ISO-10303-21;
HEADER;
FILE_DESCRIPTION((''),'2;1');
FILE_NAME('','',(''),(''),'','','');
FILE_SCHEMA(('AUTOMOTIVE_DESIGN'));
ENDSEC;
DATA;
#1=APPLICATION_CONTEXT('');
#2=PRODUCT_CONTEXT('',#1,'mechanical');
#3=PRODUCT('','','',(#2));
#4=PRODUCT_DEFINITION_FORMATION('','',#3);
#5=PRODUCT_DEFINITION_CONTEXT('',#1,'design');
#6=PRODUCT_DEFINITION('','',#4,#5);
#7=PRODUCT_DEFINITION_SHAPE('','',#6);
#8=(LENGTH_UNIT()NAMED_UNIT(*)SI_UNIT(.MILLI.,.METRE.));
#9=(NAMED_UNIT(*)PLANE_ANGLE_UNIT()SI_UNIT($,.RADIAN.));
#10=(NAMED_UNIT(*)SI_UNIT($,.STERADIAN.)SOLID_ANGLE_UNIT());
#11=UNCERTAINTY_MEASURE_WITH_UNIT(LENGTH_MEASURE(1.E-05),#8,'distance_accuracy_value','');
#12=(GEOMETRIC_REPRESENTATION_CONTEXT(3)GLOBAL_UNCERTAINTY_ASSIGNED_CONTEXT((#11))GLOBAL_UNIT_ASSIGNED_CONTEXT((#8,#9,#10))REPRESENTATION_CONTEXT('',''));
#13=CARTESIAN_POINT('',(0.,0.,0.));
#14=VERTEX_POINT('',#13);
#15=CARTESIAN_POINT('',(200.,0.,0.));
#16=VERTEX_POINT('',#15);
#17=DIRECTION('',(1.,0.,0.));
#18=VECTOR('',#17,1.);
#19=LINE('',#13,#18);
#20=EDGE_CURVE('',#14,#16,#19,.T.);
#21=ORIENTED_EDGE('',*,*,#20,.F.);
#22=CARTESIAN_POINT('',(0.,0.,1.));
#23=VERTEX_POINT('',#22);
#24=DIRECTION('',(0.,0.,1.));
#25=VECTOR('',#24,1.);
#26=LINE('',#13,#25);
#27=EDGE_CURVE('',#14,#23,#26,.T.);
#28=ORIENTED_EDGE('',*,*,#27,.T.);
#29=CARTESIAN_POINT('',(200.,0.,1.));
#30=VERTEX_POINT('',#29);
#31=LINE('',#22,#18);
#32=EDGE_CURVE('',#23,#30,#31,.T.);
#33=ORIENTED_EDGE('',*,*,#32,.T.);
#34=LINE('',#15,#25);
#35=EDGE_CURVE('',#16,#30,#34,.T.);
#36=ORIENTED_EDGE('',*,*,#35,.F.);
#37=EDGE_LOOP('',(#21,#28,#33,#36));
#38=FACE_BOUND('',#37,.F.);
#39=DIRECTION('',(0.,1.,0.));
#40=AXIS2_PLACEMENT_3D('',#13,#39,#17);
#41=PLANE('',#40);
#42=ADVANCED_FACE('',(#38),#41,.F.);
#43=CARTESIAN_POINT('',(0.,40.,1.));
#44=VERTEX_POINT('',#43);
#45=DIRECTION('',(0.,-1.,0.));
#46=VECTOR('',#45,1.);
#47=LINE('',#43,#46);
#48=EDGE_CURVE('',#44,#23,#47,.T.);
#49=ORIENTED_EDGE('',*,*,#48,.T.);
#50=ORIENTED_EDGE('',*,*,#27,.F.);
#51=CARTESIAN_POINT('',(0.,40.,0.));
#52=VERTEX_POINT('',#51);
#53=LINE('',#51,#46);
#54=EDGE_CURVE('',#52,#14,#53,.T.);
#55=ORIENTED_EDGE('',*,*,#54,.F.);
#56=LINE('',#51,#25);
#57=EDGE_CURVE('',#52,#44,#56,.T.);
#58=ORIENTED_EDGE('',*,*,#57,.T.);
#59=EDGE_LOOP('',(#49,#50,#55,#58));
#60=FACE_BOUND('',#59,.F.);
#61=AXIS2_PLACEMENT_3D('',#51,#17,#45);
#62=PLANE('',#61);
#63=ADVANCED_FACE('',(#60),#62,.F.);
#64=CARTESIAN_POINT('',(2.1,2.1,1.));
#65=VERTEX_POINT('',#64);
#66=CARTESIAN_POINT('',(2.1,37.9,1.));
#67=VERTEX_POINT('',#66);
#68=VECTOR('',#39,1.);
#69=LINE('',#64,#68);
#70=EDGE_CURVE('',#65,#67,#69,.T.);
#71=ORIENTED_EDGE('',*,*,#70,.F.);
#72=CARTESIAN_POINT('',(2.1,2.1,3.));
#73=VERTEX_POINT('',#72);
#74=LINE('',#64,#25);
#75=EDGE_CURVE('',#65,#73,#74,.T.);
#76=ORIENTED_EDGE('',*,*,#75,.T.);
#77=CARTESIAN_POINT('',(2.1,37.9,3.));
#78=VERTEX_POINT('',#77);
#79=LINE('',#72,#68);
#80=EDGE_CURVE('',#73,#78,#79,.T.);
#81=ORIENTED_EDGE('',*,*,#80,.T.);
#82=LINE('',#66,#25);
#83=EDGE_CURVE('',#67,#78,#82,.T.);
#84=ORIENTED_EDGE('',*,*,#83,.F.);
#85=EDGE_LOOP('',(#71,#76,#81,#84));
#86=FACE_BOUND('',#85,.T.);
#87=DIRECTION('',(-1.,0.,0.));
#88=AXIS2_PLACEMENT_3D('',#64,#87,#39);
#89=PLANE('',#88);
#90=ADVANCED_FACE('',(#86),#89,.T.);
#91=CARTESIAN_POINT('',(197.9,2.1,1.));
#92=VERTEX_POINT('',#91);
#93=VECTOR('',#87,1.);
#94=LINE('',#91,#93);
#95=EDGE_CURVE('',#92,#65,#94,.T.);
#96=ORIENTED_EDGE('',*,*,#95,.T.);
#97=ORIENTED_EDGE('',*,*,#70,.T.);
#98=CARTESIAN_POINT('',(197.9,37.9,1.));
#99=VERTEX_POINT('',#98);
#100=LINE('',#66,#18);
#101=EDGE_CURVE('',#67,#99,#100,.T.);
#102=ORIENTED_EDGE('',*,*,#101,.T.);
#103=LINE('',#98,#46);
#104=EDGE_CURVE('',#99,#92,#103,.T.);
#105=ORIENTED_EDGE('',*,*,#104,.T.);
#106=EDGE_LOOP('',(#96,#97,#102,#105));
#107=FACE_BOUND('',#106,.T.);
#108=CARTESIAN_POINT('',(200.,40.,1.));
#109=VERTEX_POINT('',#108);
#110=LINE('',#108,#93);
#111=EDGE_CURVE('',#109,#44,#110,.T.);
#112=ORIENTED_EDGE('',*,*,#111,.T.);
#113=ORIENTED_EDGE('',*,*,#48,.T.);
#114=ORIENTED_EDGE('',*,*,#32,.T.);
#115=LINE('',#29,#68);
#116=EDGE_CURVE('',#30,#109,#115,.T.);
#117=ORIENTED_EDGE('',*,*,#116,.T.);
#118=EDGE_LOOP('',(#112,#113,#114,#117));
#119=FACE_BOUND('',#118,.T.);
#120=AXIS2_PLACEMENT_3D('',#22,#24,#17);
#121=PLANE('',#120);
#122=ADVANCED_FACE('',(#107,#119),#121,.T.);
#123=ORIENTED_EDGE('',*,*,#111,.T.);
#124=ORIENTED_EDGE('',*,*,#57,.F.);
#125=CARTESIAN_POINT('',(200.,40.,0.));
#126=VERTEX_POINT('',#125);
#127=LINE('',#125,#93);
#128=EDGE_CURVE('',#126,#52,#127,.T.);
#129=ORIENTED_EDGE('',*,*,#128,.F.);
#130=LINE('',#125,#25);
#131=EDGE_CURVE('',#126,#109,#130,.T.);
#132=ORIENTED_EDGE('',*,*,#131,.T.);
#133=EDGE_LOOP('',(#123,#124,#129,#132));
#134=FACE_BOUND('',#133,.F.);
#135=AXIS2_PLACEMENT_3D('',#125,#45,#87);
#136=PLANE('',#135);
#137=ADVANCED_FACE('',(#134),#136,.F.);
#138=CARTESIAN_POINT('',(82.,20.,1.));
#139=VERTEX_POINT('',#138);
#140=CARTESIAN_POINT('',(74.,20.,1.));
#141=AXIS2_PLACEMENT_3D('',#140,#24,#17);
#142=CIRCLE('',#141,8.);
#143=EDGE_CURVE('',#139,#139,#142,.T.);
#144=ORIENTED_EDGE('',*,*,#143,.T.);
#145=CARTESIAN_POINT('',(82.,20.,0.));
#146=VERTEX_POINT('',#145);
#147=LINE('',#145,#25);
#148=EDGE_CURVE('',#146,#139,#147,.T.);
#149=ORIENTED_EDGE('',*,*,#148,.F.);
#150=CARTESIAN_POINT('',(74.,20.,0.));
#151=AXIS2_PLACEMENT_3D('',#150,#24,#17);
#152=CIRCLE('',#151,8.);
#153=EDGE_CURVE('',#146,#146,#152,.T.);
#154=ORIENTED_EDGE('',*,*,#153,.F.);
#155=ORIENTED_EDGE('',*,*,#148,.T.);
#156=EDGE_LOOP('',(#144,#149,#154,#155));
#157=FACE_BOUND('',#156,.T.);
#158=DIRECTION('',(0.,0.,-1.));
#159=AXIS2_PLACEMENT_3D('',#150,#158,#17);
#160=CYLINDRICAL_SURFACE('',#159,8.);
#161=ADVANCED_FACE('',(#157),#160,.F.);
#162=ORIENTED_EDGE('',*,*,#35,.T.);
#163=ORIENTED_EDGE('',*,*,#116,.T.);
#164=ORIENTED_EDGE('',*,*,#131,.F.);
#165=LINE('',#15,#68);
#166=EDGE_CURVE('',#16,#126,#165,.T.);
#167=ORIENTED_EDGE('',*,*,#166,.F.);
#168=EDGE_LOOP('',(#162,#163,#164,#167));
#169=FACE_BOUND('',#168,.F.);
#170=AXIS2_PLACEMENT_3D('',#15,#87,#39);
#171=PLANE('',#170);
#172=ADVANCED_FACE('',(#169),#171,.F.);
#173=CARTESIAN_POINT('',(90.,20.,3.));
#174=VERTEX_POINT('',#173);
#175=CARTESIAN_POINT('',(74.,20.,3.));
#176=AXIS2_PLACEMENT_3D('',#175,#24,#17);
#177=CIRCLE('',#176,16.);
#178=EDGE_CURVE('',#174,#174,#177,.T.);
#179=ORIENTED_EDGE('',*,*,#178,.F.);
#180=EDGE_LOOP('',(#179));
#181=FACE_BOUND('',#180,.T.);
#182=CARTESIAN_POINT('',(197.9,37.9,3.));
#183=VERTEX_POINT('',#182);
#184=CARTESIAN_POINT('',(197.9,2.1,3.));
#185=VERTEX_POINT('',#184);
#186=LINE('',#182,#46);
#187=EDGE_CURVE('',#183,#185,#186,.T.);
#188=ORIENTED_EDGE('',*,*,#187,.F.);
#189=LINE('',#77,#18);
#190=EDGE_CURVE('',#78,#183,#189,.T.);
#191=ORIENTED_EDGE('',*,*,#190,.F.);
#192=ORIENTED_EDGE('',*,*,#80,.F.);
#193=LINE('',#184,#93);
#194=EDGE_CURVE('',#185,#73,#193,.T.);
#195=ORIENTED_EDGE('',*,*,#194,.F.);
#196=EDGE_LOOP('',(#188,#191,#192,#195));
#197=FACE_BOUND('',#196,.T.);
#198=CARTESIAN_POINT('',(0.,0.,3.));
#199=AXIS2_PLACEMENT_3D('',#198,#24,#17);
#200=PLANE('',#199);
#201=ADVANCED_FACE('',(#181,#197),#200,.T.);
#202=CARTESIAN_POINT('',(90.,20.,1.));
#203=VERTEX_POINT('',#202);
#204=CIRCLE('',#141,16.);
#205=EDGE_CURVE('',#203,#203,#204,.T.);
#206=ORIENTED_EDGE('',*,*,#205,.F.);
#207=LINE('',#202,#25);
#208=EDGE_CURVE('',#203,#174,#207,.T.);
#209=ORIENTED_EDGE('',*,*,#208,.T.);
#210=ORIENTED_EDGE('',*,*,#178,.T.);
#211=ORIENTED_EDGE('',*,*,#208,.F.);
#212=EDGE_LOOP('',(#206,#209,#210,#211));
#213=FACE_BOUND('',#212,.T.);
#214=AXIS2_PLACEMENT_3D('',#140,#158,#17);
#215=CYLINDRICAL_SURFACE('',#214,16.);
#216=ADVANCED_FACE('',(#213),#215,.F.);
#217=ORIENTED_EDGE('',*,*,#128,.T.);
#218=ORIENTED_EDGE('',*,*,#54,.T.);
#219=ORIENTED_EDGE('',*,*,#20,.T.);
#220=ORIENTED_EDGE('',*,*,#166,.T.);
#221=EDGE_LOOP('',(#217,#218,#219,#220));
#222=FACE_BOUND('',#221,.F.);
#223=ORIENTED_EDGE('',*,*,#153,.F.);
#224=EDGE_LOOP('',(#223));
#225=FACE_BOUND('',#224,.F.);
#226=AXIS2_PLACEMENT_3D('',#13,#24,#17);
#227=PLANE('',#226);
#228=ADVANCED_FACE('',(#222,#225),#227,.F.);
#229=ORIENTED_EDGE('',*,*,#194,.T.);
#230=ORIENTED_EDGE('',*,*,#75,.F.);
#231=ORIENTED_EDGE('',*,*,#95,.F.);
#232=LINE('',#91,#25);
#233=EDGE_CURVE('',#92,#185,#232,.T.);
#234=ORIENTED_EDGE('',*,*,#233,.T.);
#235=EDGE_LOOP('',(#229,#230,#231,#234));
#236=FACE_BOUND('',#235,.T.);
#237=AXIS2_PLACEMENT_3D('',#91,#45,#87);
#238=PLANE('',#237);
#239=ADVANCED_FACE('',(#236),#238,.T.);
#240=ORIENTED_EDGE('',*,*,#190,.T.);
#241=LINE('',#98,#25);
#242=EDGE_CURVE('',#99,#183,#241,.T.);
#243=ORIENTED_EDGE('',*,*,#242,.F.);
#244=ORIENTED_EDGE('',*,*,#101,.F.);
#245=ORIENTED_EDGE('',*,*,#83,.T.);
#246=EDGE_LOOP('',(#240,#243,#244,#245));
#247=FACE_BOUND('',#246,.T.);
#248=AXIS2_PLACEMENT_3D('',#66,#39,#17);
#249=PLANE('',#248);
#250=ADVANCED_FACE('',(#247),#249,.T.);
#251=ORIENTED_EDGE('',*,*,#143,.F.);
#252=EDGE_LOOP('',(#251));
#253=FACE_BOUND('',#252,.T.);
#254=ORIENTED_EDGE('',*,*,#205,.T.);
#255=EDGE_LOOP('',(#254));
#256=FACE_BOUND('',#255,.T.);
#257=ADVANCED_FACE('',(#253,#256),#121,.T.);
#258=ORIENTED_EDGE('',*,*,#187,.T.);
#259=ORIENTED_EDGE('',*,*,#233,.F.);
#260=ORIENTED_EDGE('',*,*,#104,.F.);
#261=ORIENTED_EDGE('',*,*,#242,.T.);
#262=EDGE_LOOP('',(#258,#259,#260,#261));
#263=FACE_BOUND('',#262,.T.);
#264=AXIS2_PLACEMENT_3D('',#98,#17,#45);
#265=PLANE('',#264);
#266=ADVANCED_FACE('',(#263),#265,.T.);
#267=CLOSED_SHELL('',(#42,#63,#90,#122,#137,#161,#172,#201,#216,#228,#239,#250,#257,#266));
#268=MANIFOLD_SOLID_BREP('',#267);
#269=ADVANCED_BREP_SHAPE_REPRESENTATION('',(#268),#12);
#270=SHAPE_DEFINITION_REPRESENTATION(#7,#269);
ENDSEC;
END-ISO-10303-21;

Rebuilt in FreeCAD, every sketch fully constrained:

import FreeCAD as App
import Part
import Sketcher
from FreeCAD import Vector


def add_polygon(sketch, points):
    """Adds a closed chain of lines whose ends are joined by coincident constraints."""
    first, n = sketch.GeometryCount, len(points)
    for a, b in zip(points, points[1:] + points[:1]):
        sketch.addGeometry(Part.LineSegment(App.Vector(*a, 0), App.Vector(*b, 0)), False)
    for i in range(n):
        sketch.addConstraint(Sketcher.Constraint("Coincident", first + i, 2, first + (i + 1) % n, 1))

doc = App.newDocument("Part")
body = doc.addObject("PartDesign::Body", "Body")

# Sketch on XY plane
sketch1 = body.newObject("Sketcher::SketchObject", "Sketch")
sketch1.AttachmentSupport = (doc.getObject("XY_Plane"), [""])
sketch1.MapMode = "FlatFace"
add_polygon(sketch1, [(0, 40), (0, 0), (200, 0), (200, 40)])  # lines 0-3
sketch1.addGeometry(Part.Circle(Vector(74, 20, 0), Vector(0, 0, 1), 8), False)  # 4
sketch1.addConstraint([
    Sketcher.Constraint("Vertical", 0),
    Sketcher.Constraint("Horizontal", 1),
    Sketcher.Constraint("Vertical", 2),
    Sketcher.Constraint("Horizontal", 3),
    Sketcher.Constraint("Coincident", 0, 2, -1, 1),
    Sketcher.Constraint("Diameter", 4, 16.0),
    Sketcher.Constraint("DistanceX", 1, 1, 1, 2, 200.0),
    Sketcher.Constraint("DistanceY", 0, 2, 0, 1, 40.0),
    Sketcher.Constraint("DistanceX", -1, 1, 4, 3, 74.0),
    Sketcher.Constraint("DistanceY", -1, 1, 4, 3, 20.0),
])
pad1 = body.newObject("PartDesign::Pad", "Pad")
pad1.Profile = sketch1
pad1.Length = 1

# Sketch on XY plane
sketch2 = body.newObject("Sketcher::SketchObject", "Sketch001")
sketch2.AttachmentSupport = (doc.getObject("XY_Plane"), [""])
sketch2.MapMode = "FlatFace"
sketch2.AttachmentOffset = App.Placement(Vector(0, 0, 1), App.Rotation())
add_polygon(sketch2, [(198, 2), (198, 38), (2, 38), (2, 2)])  # lines 0-3
sketch2.addGeometry(Part.Circle(Vector(74, 20, 0), Vector(0, 0, 1), 16), False)  # 4
sketch2.addConstraint([
    Sketcher.Constraint("Vertical", 0),
    Sketcher.Constraint("Horizontal", 1),
    Sketcher.Constraint("Vertical", 2),
    Sketcher.Constraint("Horizontal", 3),
    Sketcher.Constraint("Diameter", 4, 32.0),
    Sketcher.Constraint("DistanceX", -1, 1, 1, 2, 2.1),
    Sketcher.Constraint("DistanceY", -1, 1, 2, 2, 2.1),
    Sketcher.Constraint("DistanceX", 1, 2, 1, 1, 195.8),
    Sketcher.Constraint("DistanceY", 0, 1, 0, 2, 35.8),
    Sketcher.Constraint("DistanceX", -1, 1, 4, 3, 74.0),
    Sketcher.Constraint("DistanceY", -1, 1, 4, 3, 20.0),
])
pad2 = body.newObject("PartDesign::Pad", "Pad001")
pad2.Profile = sketch2
pad2.Length = 2

doc.recompute()
